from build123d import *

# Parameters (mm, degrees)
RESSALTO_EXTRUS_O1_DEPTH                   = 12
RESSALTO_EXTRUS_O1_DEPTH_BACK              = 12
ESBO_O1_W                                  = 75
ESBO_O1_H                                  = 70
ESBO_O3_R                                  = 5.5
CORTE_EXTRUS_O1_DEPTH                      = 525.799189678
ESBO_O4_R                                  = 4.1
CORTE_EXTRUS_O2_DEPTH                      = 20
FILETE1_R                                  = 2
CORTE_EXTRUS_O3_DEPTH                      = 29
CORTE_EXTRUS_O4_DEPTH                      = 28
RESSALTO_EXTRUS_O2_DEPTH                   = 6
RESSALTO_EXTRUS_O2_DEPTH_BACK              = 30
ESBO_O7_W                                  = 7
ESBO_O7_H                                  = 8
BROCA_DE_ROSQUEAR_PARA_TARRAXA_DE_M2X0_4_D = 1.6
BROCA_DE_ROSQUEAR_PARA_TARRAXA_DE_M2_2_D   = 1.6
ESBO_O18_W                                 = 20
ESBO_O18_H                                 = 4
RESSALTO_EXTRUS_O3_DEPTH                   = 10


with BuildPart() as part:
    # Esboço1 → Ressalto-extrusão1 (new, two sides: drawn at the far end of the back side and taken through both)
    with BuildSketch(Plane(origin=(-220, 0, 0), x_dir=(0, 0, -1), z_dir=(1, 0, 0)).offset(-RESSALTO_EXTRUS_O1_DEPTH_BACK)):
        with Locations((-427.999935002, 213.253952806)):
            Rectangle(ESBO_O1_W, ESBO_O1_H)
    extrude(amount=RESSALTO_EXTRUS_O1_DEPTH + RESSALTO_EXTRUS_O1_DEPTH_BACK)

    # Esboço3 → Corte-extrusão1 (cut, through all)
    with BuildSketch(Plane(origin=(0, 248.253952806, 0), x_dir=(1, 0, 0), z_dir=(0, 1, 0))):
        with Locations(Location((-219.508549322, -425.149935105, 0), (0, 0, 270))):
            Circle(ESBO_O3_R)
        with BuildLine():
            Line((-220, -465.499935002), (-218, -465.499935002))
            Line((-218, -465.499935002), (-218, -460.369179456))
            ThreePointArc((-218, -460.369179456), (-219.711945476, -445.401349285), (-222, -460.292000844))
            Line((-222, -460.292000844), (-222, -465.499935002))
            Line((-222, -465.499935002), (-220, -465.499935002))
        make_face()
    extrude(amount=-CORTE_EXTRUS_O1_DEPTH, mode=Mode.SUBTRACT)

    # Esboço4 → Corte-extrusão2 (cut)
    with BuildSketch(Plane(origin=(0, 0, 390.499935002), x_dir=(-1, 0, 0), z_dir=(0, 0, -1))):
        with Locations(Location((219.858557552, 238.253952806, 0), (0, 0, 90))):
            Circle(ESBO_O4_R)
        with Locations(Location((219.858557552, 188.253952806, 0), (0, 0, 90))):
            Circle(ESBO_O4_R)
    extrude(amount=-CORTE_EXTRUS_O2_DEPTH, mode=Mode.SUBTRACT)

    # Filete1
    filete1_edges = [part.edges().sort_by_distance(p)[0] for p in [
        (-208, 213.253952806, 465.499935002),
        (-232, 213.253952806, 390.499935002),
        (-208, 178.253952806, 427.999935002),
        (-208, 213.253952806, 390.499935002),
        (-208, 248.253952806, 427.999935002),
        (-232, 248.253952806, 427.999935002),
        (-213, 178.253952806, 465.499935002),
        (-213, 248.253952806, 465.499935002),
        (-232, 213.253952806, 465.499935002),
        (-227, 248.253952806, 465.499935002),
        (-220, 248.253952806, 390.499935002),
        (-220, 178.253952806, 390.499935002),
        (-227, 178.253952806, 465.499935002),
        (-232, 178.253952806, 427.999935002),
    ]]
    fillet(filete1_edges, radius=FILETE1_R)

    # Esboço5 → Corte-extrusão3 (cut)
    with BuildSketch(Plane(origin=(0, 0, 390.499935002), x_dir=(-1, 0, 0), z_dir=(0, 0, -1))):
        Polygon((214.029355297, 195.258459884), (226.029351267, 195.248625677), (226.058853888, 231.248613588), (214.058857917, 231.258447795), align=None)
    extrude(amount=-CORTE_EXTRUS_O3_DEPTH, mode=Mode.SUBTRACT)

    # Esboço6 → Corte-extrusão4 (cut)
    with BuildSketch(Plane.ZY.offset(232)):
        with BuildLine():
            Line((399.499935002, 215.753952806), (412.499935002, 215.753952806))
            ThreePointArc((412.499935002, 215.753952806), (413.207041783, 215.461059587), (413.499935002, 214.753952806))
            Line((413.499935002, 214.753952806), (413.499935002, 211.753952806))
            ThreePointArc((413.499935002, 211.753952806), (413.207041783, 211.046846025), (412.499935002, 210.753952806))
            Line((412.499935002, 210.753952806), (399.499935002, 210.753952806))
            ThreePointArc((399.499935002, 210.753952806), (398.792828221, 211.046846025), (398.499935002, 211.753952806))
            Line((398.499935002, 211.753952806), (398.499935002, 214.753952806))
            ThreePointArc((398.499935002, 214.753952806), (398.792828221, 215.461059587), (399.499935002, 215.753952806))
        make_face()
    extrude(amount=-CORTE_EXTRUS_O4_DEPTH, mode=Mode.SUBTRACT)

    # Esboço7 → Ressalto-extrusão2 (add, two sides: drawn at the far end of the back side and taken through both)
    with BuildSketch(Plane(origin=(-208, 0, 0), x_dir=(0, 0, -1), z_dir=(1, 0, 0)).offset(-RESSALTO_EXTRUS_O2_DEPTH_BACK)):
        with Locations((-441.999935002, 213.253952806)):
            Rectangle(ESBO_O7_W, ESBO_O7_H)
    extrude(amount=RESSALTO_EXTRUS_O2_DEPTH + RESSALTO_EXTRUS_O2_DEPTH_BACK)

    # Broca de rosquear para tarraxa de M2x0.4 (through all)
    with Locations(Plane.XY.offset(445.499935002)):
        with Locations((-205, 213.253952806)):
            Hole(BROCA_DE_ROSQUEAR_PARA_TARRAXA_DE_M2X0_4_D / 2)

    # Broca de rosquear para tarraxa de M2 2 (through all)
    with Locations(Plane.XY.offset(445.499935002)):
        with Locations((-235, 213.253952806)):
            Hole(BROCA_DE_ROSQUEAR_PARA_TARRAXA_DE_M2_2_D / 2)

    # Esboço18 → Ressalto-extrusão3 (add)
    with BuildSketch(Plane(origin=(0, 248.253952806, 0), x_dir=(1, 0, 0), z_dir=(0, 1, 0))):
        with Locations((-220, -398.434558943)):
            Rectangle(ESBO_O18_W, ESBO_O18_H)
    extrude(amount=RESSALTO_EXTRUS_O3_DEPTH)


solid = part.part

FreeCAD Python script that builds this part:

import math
import FreeCAD as App
import Part
import Sketcher

V = App.Vector
Q = App.Units.Quantity


def edges_at(feature, points):
    """Names of the edges that pass closest to the given points."""
    edges = feature.Shape.Edges
    near = lambda p: min(range(len(edges)), key=lambda i: edges[i].distToShape(Part.Vertex(*p))[0])
    return sorted({f"Edge{near(p) + 1}" for p in points})


def add_polygon(sketch, points):
    """Adds a closed chain of lines whose ends are joined by coincident constraints."""
    first, n = sketch.GeometryCount, len(points)
    for a, b in zip(points, points[1:] + points[:1]):
        sketch.addGeometry(Part.LineSegment(App.Vector(*a, 0), App.Vector(*b, 0)), False)
    for i in range(n):
        sketch.addConstraint(Sketcher.Constraint("Coincident", first + i, 2, first + (i + 1) % n, 1))

doc = App.newDocument("Part")
params = doc.addObject("Spreadsheet::Sheet", "Params")
for row, (alias, value) in enumerate([
    ("sketch1_width", "70 mm"),
    ("sketch1_height", "75 mm"),
    ("pad1_length", "12 mm"),
    ("pad1_length2", "12 mm"),
    ("sketch2_diameter", "11 mm"),
    ("sketch2_radius", "7.6 mm"),
    ("sketch2_width", "4 mm"),
    ("sketch3_diameter", "8.2 mm"),
    ("pocket2_length", "20 mm"),
    ("fillet_radius", "2 mm"),
    ("sketch4_length", "12 mm"),
    ("sketch4_length2", "36 mm"),
    ("pocket3_length", "29 mm"),
    ("sketch5_radius", "1 mm"),
    ("sketch5_width", "3 mm"),
    ("sketch5_height", "13 mm"),
    ("pocket4_length", "28 mm"),
    ("sketch6_width", "8 mm"),
    ("sketch6_height", "7 mm"),
    ("pad2_length", "6 mm"),
    ("pad2_length2", "30 mm"),
    ("sketch7_diameter", "1.6 mm"),
    ("hole_diameter", "1.6 mm"),
    ("sketch8_diameter", "1.6 mm"),
    ("hole2_diameter", "1.6 mm"),
    ("sketch9_width", "20 mm"),
    ("sketch9_height", "4 mm"),
    ("pad3_length", "10 mm"),
], start=1):
    params.set(f"A{row}", alias)
    params.set(f"B{row}", "=" + value)
    params.setAlias(f"B{row}", alias)

body = doc.addObject("PartDesign::Body", "Body")

# Sketch on YZ plane
sketch1 = body.newObject("Sketcher::SketchObject", "Sketch")
sketch1.AttachmentSupport = (doc.getObject("YZ_Plane"), [""])
sketch1.MapMode = "FlatFace"
sketch1.AttachmentOffset = App.Placement(V(0, 0, -220), App.Rotation())
add_polygon(sketch1, [(248.253953, 465.499935), (178.253953, 465.499935), (178.253953, 390.499935), (248.253953, 390.499935)])  # lines 0-3
sketch1.addConstraint(Sketcher.Constraint("Horizontal", 0))
sketch1.addConstraint(Sketcher.Constraint("Vertical", 1))
sketch1.addConstraint(Sketcher.Constraint("Horizontal", 2))
sketch1.addConstraint(Sketcher.Constraint("Vertical", 3))
sketch1.addConstraint(Sketcher.Constraint("DistanceX", 0, 2, 0, 1, Q("70 mm")))
sketch1.addConstraint(Sketcher.Constraint("DistanceY", 1, 2, 1, 1, Q("75 mm")))
sketch1.addConstraint(Sketcher.Constraint("DistanceX", -1, 1, 0, 2, Q("178.253953 mm")))
sketch1.addConstraint(Sketcher.Constraint("DistanceY", -1, 1, 0, 2, Q("465.499935 mm")))
sketch1.setExpression("Constraints[8]", "Params.sketch1_width")
sketch1.setExpression("Constraints[9]", "Params.sketch1_height")
pad1 = body.newObject("PartDesign::Pad", "Pad")
pad1.Profile = sketch1
pad1.Type = "TwoLengths"
pad1.setExpression("Length", "Params.pad1_length")
pad1.setExpression("Length2", "Params.pad1_length2")

# Sketch on XZ plane
sketch2 = body.newObject("Sketcher::SketchObject", "Sketch001")
sketch2.AttachmentSupport = (doc.getObject("XZ_Plane"), [""])
sketch2.MapMode = "FlatFace"
sketch2.AttachmentOffset = App.Placement(V(0, 0, -248.253953), App.Rotation())
sketch2.addGeometry(Part.Circle(V(-219.508549, 425.149935, 0), V(0, 0, 1), 5.5), False)
sketch2.addGeometry(Part.LineSegment(V(-218, 465.499935, 0), V(-218, 460.369179, 0)), False)
sketch2.addGeometry(Part.ArcOfCircle(Part.Circle(V(-219.858558, 452.999935, 0), V(0, 0, 1), 7.6), math.radians(106.365797), math.radians(435.844933)), False)
sketch2.addGeometry(Part.LineSegment(V(-222, 460.292001, 0), V(-222, 465.499935, 0)), False)
sketch2.addGeometry(Part.LineSegment(V(-222, 465.499935, 0), V(-218, 465.499935, 0)), False)
sketch2.addConstraint(Sketcher.Constraint("Coincident", 1, 2, 2, 2))
sketch2.addConstraint(Sketcher.Constraint("Coincident", 2, 1, 3, 1))
sketch2.addConstraint(Sketcher.Constraint("Coincident", 3, 2, 4, 1))
sketch2.addConstraint(Sketcher.Constraint("Coincident", 4, 2, 1, 1))
sketch2.addConstraint(Sketcher.Constraint("Vertical", 1))
sketch2.addConstraint(Sketcher.Constraint("Vertical", 3))
sketch2.addConstraint(Sketcher.Constraint("Horizontal", 4))
sketch2.addConstraint(Sketcher.Constraint("Diameter", 0, Q("11 mm")))
sketch2.addConstraint(Sketcher.Constraint("Radius", 2, Q("7.6 mm")))
sketch2.addConstraint(Sketcher.Constraint("DistanceX", 4, 1, 4, 2, Q("4 mm")))
sketch2.addConstraint(Sketcher.Constraint("DistanceX", 1, 2, -1, 1, Q("218 mm")))
sketch2.addConstraint(Sketcher.Constraint("DistanceY", 2, 3, 3, 2, Q("12.5 mm")))
sketch2.addConstraint(Sketcher.Constraint("DistanceY", 0, 3, 2, 3, Q("27.85 mm")))
sketch2.addConstraint(Sketcher.Constraint("DistanceY", -1, 1, 2, 1, Q("460.292001 mm")))
sketch2.addConstraint(Sketcher.Constraint("DistanceY", 1, 2, 1, 1, Q("5.130756 mm")))
sketch2.addConstraint(Sketcher.Constraint("DistanceX", 0, 3, -1, 1, Q("219.508549 mm")))
sketch2.setExpression("Constraints[7]", "Params.sketch2_diameter")
sketch2.setExpression("Constraints[8]", "Params.sketch2_radius")
sketch2.setExpression("Constraints[9]", "Params.sketch2_width")
pocket1 = body.newObject("PartDesign::Pocket", "Pocket")
pocket1.Profile = sketch2
pocket1.Type = "ThroughAll"
pocket1.Reversed = True

# Sketch on XY plane
sketch3 = body.newObject("Sketcher::SketchObject", "Sketch002")
sketch3.AttachmentSupport = (doc.getObject("XY_Plane"), [""])
sketch3.MapMode = "FlatFace"
sketch3.AttachmentOffset = App.Placement(V(0, 0, 390.499935), App.Rotation())
sketch3.addGeometry(Part.Circle(V(-219.858558, 238.253953, 0), V(0, 0, 1), 4.1), False)
sketch3.addGeometry(Part.Circle(V(-219.858558, 188.253953, 0), V(0, 0, 1), 4.1), False)
sketch3.addConstraint(Sketcher.Constraint("Equal", 0, 1))
sketch3.addConstraint(Sketcher.Constraint("Vertical", 0, 3, 1, 3))
sketch3.addConstraint(Sketcher.Constraint("Diameter", 0, Q("8.2 mm")))
sketch3.addConstraint(Sketcher.Constraint("DistanceY", 1, 3, 0, 3, Q("50 mm")))
sketch3.addConstraint(Sketcher.Constraint("DistanceX", 0, 3, -1, 1, Q("219.858558 mm")))
sketch3.addConstraint(Sketcher.Constraint("DistanceY", -1, 1, 0, 3, Q("238.253953 mm")))
sketch3.setExpression("Constraints[2]", "Params.sketch3_diameter")
pocket2 = body.newObject("PartDesign::Pocket", "Pocket001")
pocket2.Profile = sketch3
pocket2.setExpression("Length", "Params.pocket2_length")
pocket2.Reversed = True
doc.recompute()

fillet = body.newObject("PartDesign::Fillet", "Fillet")
fillet.Base = (pocket2, edges_at(pocket2, [
    (-208, 213.254, 465.5),
    (-232, 213.254, 390.5),
    (-208, 178.254, 428),
    (-208, 213.254, 390.5),
    (-208, 248.254, 428),
    (-232, 248.254, 428),
    (-213, 178.254, 465.5),
    (-213, 248.254, 465.5),
    (-232, 213.254, 465.5),
    (-227, 248.254, 465.5),
    (-220, 248.254, 390.5),
    (-220, 178.254, 390.5),
    (-227, 178.254, 465.5),
    (-232, 178.254, 428),
]))
fillet.setExpression("Radius", "Params.fillet_radius")

# Sketch on XY plane
sketch4 = body.newObject("Sketcher::SketchObject", "Sketch003")
sketch4.AttachmentSupport = (doc.getObject("XY_Plane"), [""])
sketch4.MapMode = "FlatFace"
sketch4.AttachmentOffset = App.Placement(V(0, 0, 390.499935), App.Rotation())
add_polygon(sketch4, [(-214.029355, 195.25846), (-226.029351, 195.248626), (-226.058854, 231.248614), (-214.058858, 231.258448)])  # lines 0-3
sketch4.addConstraint(Sketcher.Constraint("Perpendicular", 0, 1))
sketch4.addConstraint(Sketcher.Constraint("Perpendicular", 1, 2))
sketch4.addConstraint(Sketcher.Constraint("Perpendicular", 2, 3))
sketch4.addConstraint(Sketcher.Constraint("Distance", 0, Q("12 mm")))
sketch4.addConstraint(Sketcher.Constraint("Distance", 1, Q("36 mm")))
sketch4.addConstraint(Sketcher.Constraint("DistanceX", 1, 2, 3, 2, Q("12.029499 mm")))
sketch4.addConstraint(Sketcher.Constraint("DistanceX", 0, 2, -1, 1, Q("226.029351 mm")))
sketch4.addConstraint(Sketcher.Constraint("DistanceY", -1, 1, 3, 2, Q("195.25846 mm")))
sketch4.setExpression("Constraints[7]", "Params.sketch4_length")
sketch4.setExpression("Constraints[8]", "Params.sketch4_length2")
pocket3 = body.newObject("PartDesign::Pocket", "Pocket002")
pocket3.Profile = sketch4
pocket3.setExpression("Length", "Params.pocket3_length")
pocket3.Reversed = True

# Sketch on YZ plane
sketch5 = body.newObject("Sketcher::SketchObject", "Sketch004")
sketch5.AttachmentSupport = (doc.getObject("YZ_Plane"), [""])
sketch5.MapMode = "FlatFace"
sketch5.AttachmentOffset = App.Placement(V(0, 0, -232), App.Rotation())
sketch5.addGeometry(Part.LineSegment(V(215.753953, 412.499935, 0), V(215.753953, 399.499935, 0)), False)
sketch5.addGeometry(Part.ArcOfCircle(Part.Circle(V(214.753953, 399.499935, 0), V(0, 0, 1), 1), math.radians(-90), math.radians(0)), False)
sketch5.addGeometry(Part.LineSegment(V(214.753953, 398.499935, 0), V(211.753953, 398.499935, 0)), False)
sketch5.addGeometry(Part.ArcOfCircle(Part.Circle(V(211.753953, 399.499935, 0), V(0, 0, 1), 1), math.radians(-180), math.radians(-90)), False)
sketch5.addGeometry(Part.LineSegment(V(210.753953, 399.499935, 0), V(210.753953, 412.499935, 0)), False)
sketch5.addGeometry(Part.ArcOfCircle(Part.Circle(V(211.753953, 412.499935, 0), V(0, 0, 1), 1), math.radians(90), math.radians(180)), False)
sketch5.addGeometry(Part.LineSegment(V(211.753953, 413.499935, 0), V(214.753953, 413.499935, 0)), False)
sketch5.addGeometry(Part.ArcOfCircle(Part.Circle(V(214.753953, 412.499935, 0), V(0, 0, 1), 1), math.radians(0), math.radians(90)), False)
sketch5.addConstraint(Sketcher.Constraint("Tangent", 0, 2, 1, 2))
sketch5.addConstraint(Sketcher.Constraint("Tangent", 1, 1, 2, 1))
sketch5.addConstraint(Sketcher.Constraint("Tangent", 2, 2, 3, 2))
sketch5.addConstraint(Sketcher.Constraint("Tangent", 3, 1, 4, 1))
sketch5.addConstraint(Sketcher.Constraint("Tangent", 4, 2, 5, 2))
sketch5.addConstraint(Sketcher.Constraint("Tangent", 5, 1, 6, 1))
sketch5.addConstraint(Sketcher.Constraint("Tangent", 6, 2, 7, 2))
sketch5.addConstraint(Sketcher.Constraint("Tangent", 7, 1, 0, 1))
sketch5.addConstraint(Sketcher.Constraint("Vertical", 0))
sketch5.addConstraint(Sketcher.Constraint("Horizontal", 2))
sketch5.addConstraint(Sketcher.Constraint("Vertical", 4))
sketch5.addConstraint(Sketcher.Constraint("Horizontal", 6))
sketch5.addConstraint(Sketcher.Constraint("Equal", 1, 3))
sketch5.addConstraint(Sketcher.Constraint("Equal", 3, 5))
sketch5.addConstraint(Sketcher.Constraint("Equal", 5, 7))
sketch5.addConstraint(Sketcher.Constraint("Radius", 1, Q("1 mm")))
sketch5.addConstraint(Sketcher.Constraint("DistanceX", 2, 2, 2, 1, Q("3 mm")))
sketch5.addConstraint(Sketcher.Constraint("DistanceY", 0, 2, 0, 1, Q("13 mm")))
sketch5.addConstraint(Sketcher.Constraint("DistanceX", -1, 1, 1, 3, Q("214.753953 mm")))
sketch5.addConstraint(Sketcher.Constraint("DistanceY", -1, 1, 1, 3, Q("399.499935 mm")))
sketch5.setExpression("Constraints[15]", "Params.sketch5_radius")
sketch5.setExpression("Constraints[16]", "Params.sketch5_width")
sketch5.setExpression("Constraints[17]", "Params.sketch5_height")
pocket4 = body.newObject("PartDesign::Pocket", "Pocket003")
pocket4.Profile = sketch5
pocket4.setExpression("Length", "Params.pocket4_length")
pocket4.Reversed = True

# Sketch on YZ plane
sketch6 = body.newObject("Sketcher::SketchObject", "Sketch005")
sketch6.AttachmentSupport = (doc.getObject("YZ_Plane"), [""])
sketch6.MapMode = "FlatFace"
sketch6.AttachmentOffset = App.Placement(V(0, 0, -208), App.Rotation())
add_polygon(sketch6, [(217.253953, 445.499935), (209.253953, 445.499935), (209.253953, 438.499935), (217.253953, 438.499935)])  # lines 0-3
sketch6.addConstraint(Sketcher.Constraint("Horizontal", 0))
sketch6.addConstraint(Sketcher.Constraint("Vertical", 1))
sketch6.addConstraint(Sketcher.Constraint("Horizontal", 2))
sketch6.addConstraint(Sketcher.Constraint("Vertical", 3))
sketch6.addConstraint(Sketcher.Constraint("DistanceX", 0, 2, 0, 1, Q("8 mm")))
sketch6.addConstraint(Sketcher.Constraint("DistanceY", 1, 2, 1, 1, Q("7 mm")))
sketch6.addConstraint(Sketcher.Constraint("DistanceX", -1, 1, 0, 2, Q("209.253953 mm")))
sketch6.addConstraint(Sketcher.Constraint("DistanceY", -1, 1, 0, 2, Q("445.499935 mm")))
sketch6.setExpression("Constraints[8]", "Params.sketch6_width")
sketch6.setExpression("Constraints[9]", "Params.sketch6_height")
pad2 = body.newObject("PartDesign::Pad", "Pad001")
pad2.Profile = sketch6
pad2.Type = "TwoLengths"
pad2.setExpression("Length", "Params.pad2_length")
pad2.setExpression("Length2", "Params.pad2_length2")

# Sketch on XY plane
sketch7 = body.newObject("Sketcher::SketchObject", "Sketch006")
sketch7.AttachmentSupport = (doc.getObject("XY_Plane"), [""])
sketch7.MapMode = "FlatFace"
sketch7.AttachmentOffset = App.Placement(V(0, 0, 445.499935), App.Rotation())
sketch7.addGeometry(Part.Circle(V(-205, 213.253953, 0), V(0, 0, 1), 0.8), False)
sketch7.addConstraint(Sketcher.Constraint("Diameter", 0, Q("1.6 mm")))
sketch7.addConstraint(Sketcher.Constraint("DistanceX", 0, 3, -1, 1, Q("205 mm")))
sketch7.addConstraint(Sketcher.Constraint("DistanceY", -1, 1, 0, 3, Q("213.253953 mm")))
sketch7.setExpression("Constraints[0]", "Params.sketch7_diameter")
doc.recompute()
hole = body.newObject("PartDesign::Hole", "Hole")
hole.Profile = sketch7
hole.ThreadType = "None"
hole.setExpression("Diameter", "Params.hole_diameter")
hole.DepthType = "ThroughAll"

# Sketch on XY plane
sketch8 = body.newObject("Sketcher::SketchObject", "Sketch007")
sketch8.AttachmentSupport = (doc.getObject("XY_Plane"), [""])
sketch8.MapMode = "FlatFace"
sketch8.AttachmentOffset = App.Placement(V(0, 0, 445.499935), App.Rotation())
sketch8.addGeometry(Part.Circle(V(-235, 213.253953, 0), V(0, 0, 1), 0.8), False)
sketch8.addConstraint(Sketcher.Constraint("Diameter", 0, Q("1.6 mm")))
sketch8.addConstraint(Sketcher.Constraint("DistanceX", 0, 3, -1, 1, Q("235 mm")))
sketch8.addConstraint(Sketcher.Constraint("DistanceY", -1, 1, 0, 3, Q("213.253953 mm")))
sketch8.setExpression("Constraints[0]", "Params.sketch8_diameter")
doc.recompute()
hole2 = body.newObject("PartDesign::Hole", "Hole001")
hole2.Profile = sketch8
hole2.ThreadType = "None"
hole2.setExpression("Diameter", "Params.hole2_diameter")
hole2.DepthType = "ThroughAll"

# Sketch on XZ plane
sketch9 = body.newObject("Sketcher::SketchObject", "Sketch008")
sketch9.AttachmentSupport = (doc.getObject("XZ_Plane"), [""])
sketch9.MapMode = "FlatFace"
sketch9.AttachmentOffset = App.Placement(V(0, 0, -248.253953), App.Rotation())
add_polygon(sketch9, [(-230, 396.434559), (-230, 400.434559), (-210, 400.434559), (-210, 396.434559)])  # lines 0-3
sketch9.addConstraint(Sketcher.Constraint("Vertical", 0))
sketch9.addConstraint(Sketcher.Constraint("Horizontal", 1))
sketch9.addConstraint(Sketcher.Constraint("Vertical", 2))
sketch9.addConstraint(Sketcher.Constraint("Horizontal", 3))
sketch9.addConstraint(Sketcher.Constraint("DistanceX", 1, 1, 1, 2, Q("20 mm")))
sketch9.addConstraint(Sketcher.Constraint("DistanceY", 0, 1, 0, 2, Q("4 mm")))
sketch9.addConstraint(Sketcher.Constraint("DistanceX", 0, 2, -1, 1, Q("230 mm")))
sketch9.addConstraint(Sketcher.Constraint("DistanceY", -1, 1, 0, 2, Q("400.434559 mm")))
sketch9.setExpression("Constraints[8]", "Params.sketch9_width")
sketch9.setExpression("Constraints[9]", "Params.sketch9_height")
pad3 = body.newObject("PartDesign::Pad", "Pad002")
pad3.Profile = sketch9
pad3.setExpression("Length", "Params.pad3_length")
pad3.Reversed = True

doc.recompute()
